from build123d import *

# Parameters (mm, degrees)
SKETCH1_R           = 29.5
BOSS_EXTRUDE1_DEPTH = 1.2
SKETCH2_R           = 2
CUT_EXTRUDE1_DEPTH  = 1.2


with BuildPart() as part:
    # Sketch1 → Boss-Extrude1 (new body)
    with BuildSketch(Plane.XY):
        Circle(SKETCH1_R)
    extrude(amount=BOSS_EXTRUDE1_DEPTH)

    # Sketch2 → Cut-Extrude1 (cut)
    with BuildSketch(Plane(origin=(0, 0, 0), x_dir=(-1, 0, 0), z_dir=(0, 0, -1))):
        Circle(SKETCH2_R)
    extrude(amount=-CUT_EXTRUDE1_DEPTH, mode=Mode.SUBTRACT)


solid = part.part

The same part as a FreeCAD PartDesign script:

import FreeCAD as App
import Part
import Sketcher
Q = App.Units.Quantity

doc = App.newDocument("Part")
body = doc.addObject("PartDesign::Body", "Body")

sketch1 = doc.addObject("Sketcher::SketchObject", "Sketch")
body.addObject(sketch1)
sketch1.AttachmentSupport = (doc.XY_Plane, [""])
sketch1.MapMode = "FlatFace"
sketch1.addGeometry(Part.Circle(App.Vector(0, 0, 0), App.Vector(0, 0, 1), 30), False)
sketch1.addConstraint([
    Sketcher.Constraint("Coincident", 0, 3, -1, 1),
    Sketcher.Constraint("Diameter", 0, Q("59 mm")),
])
pad1 = doc.addObject("PartDesign::Pad", "Pad")
body.addObject(pad1)
pad1.Profile = sketch1
pad1.Length = 1.2

sketch2 = doc.addObject("Sketcher::SketchObject", "Sketch001")
body.addObject(sketch2)
sketch2.AttachmentSupport = (doc.XY_Plane, [""])
sketch2.MapMode = "FlatFace"
sketch2.addGeometry(Part.Circle(App.Vector(0, 0, 0), App.Vector(0, 0, 1), 2), False)
sketch2.addConstraint([
    Sketcher.Constraint("Coincident", 0, 3, -1, 1),
    Sketcher.Constraint("Diameter", 0, Q("4 mm")),
])
pocket1 = doc.addObject("PartDesign::Pocket", "Pocket")
body.addObject(pocket1)
pocket1.Profile = sketch2
pocket1.Length = 1.2
pocket1.Reversed = True

doc.recompute()
